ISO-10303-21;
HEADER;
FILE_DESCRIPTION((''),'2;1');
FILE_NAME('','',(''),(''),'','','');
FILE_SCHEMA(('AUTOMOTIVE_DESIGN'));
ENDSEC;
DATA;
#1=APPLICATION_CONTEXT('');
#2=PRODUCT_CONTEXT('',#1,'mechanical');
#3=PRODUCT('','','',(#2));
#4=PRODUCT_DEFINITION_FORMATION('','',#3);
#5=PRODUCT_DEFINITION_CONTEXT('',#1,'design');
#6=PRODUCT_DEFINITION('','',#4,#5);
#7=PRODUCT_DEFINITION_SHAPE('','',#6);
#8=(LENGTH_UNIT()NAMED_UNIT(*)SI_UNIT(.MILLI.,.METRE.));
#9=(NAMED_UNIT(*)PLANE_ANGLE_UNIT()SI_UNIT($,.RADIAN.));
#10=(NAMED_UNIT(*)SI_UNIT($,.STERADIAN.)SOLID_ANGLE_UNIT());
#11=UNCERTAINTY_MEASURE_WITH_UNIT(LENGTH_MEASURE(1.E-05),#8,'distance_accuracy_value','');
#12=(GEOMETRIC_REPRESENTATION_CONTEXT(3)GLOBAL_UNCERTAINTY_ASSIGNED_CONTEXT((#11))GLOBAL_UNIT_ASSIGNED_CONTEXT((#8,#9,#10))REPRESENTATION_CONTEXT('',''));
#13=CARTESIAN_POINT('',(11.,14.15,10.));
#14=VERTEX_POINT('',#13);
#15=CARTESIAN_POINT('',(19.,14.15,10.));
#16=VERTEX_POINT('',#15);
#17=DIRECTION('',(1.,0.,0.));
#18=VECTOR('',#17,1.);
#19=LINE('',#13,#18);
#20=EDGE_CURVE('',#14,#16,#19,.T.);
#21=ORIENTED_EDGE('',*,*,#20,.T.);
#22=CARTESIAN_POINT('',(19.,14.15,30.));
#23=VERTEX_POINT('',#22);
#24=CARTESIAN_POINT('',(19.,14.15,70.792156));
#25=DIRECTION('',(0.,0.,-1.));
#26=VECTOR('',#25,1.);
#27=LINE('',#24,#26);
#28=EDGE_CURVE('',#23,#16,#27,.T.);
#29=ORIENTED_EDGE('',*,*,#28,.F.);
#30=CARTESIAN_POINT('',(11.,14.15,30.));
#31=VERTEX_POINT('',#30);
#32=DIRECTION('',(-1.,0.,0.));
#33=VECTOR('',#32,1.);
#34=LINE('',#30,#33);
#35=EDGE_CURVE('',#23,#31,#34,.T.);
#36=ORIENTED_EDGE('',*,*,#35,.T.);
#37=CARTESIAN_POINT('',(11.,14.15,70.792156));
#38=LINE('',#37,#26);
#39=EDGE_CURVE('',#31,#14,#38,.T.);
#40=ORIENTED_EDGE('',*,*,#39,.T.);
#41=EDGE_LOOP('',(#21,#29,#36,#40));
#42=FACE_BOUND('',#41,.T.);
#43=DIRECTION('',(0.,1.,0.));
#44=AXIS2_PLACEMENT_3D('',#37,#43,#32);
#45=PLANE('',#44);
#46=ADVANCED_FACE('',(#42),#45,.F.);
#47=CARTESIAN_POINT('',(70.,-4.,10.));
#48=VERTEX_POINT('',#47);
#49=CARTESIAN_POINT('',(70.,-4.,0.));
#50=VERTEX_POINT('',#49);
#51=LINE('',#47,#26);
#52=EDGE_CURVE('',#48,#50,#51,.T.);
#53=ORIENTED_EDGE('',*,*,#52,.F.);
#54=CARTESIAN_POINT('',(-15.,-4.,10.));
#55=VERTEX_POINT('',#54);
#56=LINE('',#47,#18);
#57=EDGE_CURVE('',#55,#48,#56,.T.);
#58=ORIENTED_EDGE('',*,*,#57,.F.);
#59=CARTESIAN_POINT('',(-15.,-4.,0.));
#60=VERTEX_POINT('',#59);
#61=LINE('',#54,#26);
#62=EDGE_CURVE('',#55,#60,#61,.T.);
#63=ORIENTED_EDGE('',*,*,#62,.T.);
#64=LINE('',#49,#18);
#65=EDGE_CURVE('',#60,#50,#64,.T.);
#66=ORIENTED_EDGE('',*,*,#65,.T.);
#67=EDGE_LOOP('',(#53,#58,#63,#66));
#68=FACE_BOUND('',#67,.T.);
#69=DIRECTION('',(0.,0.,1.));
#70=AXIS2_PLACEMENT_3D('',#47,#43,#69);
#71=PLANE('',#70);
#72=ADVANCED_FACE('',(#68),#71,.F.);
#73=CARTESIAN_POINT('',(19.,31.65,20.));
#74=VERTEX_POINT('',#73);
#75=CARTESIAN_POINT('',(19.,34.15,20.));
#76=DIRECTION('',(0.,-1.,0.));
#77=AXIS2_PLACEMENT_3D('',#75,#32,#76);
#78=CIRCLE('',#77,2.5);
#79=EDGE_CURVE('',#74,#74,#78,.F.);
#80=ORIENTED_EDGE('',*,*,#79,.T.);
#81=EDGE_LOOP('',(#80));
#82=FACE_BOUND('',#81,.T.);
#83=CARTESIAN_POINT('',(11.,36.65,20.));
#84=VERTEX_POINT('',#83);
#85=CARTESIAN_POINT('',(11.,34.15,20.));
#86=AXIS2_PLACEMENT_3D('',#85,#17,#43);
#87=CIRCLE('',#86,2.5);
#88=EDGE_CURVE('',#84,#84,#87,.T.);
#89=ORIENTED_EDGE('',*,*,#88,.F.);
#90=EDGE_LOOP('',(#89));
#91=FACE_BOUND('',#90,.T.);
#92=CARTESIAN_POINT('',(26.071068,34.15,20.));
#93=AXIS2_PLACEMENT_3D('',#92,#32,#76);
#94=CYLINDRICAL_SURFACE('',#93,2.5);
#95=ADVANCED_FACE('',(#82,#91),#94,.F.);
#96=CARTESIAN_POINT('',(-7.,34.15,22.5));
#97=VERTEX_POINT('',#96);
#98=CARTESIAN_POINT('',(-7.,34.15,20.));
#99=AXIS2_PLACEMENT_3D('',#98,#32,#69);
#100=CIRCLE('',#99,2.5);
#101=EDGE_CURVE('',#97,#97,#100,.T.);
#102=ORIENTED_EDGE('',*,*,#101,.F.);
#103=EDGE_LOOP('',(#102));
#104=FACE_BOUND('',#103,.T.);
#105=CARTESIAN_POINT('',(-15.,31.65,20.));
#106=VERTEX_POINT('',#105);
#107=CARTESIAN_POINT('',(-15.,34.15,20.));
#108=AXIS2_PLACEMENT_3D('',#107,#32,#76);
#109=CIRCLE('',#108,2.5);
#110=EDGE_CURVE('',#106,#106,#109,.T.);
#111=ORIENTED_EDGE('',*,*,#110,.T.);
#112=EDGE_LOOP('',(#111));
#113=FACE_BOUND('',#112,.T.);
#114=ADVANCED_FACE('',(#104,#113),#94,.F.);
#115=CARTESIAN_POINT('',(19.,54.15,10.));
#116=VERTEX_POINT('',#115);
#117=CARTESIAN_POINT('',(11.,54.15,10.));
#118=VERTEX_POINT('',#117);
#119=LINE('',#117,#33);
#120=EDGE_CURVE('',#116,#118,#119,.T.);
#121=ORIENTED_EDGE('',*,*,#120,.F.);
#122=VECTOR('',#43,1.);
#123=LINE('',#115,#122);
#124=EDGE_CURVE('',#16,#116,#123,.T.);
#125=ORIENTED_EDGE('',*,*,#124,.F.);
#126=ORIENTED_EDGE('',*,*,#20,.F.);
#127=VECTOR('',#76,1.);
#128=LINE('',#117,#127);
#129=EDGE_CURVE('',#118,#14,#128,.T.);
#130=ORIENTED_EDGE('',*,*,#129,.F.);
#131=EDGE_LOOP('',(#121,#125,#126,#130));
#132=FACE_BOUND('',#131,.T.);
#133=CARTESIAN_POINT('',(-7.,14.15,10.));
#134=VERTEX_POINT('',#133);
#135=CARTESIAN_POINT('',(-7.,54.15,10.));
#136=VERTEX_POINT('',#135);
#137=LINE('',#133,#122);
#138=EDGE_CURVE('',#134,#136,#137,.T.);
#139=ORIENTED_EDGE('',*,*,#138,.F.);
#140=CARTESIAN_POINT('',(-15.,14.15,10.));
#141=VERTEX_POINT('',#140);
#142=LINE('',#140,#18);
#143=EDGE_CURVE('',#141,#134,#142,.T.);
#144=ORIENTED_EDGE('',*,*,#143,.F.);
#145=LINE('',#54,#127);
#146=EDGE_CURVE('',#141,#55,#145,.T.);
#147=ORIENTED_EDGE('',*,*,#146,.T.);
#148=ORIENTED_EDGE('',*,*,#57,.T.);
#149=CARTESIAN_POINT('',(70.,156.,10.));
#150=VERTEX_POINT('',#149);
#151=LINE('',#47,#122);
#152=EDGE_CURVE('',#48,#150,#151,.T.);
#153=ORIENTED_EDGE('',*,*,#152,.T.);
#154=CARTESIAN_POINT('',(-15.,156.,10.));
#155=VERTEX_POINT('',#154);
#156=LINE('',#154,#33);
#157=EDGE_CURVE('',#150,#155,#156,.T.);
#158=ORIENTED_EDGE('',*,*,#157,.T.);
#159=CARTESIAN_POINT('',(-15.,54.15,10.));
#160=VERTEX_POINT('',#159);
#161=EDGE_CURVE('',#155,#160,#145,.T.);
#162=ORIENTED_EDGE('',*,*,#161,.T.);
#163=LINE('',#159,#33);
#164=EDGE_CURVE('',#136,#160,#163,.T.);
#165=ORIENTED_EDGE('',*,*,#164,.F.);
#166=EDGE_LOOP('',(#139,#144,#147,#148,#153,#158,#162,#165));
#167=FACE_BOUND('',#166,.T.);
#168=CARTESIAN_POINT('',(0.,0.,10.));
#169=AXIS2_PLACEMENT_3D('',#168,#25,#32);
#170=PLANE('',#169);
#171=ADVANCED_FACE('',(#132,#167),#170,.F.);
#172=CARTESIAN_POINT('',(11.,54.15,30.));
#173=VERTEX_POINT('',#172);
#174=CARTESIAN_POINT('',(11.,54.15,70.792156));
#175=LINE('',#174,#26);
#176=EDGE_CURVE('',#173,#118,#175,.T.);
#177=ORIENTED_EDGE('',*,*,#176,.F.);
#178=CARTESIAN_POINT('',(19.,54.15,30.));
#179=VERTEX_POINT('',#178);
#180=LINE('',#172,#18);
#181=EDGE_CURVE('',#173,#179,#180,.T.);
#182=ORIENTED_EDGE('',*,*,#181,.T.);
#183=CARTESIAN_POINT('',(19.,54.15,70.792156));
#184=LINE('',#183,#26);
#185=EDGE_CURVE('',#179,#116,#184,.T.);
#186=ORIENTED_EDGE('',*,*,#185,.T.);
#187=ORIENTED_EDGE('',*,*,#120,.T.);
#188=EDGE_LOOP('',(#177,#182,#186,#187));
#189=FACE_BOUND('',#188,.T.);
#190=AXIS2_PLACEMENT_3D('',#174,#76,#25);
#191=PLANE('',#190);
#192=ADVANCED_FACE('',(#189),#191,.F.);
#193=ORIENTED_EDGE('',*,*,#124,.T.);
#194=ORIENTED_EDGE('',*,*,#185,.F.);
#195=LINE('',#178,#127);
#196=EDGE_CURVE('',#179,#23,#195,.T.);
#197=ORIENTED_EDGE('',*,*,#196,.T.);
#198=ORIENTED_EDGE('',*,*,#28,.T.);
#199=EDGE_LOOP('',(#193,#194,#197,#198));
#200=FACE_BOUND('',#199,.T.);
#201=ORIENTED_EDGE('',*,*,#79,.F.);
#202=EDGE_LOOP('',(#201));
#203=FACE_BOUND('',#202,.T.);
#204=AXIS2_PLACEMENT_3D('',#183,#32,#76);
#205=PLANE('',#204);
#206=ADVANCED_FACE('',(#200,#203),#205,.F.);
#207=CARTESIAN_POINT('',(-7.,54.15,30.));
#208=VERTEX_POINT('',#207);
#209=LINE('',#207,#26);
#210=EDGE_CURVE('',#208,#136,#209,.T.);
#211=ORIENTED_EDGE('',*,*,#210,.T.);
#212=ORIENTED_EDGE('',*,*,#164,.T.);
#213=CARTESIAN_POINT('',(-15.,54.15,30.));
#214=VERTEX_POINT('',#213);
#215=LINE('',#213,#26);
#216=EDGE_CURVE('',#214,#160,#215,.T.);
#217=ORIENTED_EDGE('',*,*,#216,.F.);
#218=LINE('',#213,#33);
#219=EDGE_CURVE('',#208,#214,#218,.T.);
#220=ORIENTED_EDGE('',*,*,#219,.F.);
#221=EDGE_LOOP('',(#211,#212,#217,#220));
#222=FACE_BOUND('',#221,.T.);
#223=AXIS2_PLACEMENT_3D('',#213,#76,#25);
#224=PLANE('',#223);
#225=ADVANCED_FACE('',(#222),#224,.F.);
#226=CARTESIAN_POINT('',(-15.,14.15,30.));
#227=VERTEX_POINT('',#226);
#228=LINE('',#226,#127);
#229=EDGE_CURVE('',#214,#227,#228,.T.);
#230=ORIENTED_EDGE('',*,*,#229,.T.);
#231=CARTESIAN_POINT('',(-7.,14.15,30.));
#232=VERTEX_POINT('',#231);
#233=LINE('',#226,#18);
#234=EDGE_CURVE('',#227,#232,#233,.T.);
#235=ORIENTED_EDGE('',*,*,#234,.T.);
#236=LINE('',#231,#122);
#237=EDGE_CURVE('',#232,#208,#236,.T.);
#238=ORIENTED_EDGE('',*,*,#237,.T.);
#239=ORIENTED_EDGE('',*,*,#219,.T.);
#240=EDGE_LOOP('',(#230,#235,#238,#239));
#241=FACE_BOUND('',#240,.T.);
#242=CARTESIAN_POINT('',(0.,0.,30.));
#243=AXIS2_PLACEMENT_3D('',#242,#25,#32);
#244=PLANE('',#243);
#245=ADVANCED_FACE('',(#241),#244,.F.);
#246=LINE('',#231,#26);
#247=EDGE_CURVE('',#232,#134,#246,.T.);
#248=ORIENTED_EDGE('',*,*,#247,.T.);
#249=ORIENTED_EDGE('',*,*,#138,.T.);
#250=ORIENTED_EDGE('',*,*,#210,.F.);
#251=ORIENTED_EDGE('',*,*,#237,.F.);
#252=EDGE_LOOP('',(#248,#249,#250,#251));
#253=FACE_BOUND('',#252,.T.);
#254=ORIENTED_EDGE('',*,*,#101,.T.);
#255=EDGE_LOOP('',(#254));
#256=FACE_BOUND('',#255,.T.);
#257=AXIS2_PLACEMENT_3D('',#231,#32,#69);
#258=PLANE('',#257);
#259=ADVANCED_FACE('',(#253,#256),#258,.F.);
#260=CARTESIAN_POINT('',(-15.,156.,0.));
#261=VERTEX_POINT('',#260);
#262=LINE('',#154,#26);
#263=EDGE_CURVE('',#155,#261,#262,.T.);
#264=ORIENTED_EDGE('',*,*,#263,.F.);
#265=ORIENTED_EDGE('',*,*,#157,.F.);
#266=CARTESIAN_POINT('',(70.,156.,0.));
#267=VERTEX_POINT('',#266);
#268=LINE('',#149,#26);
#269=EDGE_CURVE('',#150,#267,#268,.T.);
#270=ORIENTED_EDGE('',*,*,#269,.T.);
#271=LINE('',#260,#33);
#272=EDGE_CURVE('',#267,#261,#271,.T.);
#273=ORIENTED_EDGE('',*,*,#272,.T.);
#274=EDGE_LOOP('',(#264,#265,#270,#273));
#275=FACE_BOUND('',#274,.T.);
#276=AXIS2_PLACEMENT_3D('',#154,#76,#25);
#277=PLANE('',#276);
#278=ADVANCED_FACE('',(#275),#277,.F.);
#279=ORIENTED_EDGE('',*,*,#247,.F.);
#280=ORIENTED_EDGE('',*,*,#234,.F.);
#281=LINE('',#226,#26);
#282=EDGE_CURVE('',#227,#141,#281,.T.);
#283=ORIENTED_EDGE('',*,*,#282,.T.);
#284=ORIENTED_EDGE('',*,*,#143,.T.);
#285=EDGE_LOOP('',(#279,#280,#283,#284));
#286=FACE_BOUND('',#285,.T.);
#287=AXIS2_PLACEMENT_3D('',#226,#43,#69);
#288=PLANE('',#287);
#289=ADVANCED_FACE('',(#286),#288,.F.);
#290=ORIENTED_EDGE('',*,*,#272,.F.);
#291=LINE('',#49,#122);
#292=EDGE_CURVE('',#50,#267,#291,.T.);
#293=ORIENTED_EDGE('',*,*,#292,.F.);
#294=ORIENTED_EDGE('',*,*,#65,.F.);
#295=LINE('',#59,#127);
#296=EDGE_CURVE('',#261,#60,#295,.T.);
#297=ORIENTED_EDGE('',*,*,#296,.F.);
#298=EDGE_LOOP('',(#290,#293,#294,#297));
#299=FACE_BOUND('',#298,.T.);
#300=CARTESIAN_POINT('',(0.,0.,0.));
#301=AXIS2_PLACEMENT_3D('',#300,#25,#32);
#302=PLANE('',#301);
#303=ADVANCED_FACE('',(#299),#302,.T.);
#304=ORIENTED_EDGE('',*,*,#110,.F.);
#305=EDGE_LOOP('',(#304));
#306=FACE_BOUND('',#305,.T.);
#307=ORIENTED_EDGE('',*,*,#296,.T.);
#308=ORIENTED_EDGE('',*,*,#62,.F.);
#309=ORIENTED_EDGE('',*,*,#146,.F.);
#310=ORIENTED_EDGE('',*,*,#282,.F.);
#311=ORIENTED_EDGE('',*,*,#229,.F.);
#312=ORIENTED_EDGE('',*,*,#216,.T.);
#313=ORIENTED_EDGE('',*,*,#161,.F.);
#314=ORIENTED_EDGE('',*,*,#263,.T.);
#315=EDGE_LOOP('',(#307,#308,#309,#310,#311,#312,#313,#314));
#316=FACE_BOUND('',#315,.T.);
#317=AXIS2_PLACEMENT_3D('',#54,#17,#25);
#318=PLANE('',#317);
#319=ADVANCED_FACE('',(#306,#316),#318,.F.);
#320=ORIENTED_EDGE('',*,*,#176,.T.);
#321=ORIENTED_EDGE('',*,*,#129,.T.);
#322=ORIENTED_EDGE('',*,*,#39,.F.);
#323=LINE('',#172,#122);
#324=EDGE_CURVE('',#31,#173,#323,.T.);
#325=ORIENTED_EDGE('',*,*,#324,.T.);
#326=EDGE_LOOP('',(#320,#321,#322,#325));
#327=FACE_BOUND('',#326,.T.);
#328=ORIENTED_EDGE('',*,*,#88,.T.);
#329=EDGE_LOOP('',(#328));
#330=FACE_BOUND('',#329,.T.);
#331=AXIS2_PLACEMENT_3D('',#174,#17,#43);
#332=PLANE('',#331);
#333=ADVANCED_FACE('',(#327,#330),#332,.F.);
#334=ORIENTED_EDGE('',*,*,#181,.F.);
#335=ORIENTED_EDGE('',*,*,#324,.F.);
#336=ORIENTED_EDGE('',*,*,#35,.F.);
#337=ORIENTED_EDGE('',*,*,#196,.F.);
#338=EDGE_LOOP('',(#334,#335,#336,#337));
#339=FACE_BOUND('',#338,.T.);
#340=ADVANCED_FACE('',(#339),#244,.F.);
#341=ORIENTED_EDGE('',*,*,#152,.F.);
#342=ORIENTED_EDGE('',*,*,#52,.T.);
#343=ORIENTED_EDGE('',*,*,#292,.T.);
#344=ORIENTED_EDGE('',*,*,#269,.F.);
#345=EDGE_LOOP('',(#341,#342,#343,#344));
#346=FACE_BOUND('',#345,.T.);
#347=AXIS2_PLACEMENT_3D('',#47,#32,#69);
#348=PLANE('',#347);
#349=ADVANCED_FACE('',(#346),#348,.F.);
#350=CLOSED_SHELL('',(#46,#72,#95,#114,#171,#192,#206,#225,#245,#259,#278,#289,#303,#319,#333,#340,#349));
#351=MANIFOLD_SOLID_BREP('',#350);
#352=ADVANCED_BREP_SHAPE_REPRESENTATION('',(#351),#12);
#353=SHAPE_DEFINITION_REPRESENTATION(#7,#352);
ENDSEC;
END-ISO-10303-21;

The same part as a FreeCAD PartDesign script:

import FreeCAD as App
import Part
import Sketcher

doc = App.newDocument("Part")
body = doc.addObject("PartDesign::Body", "Body")

sketch1 = body.newObject("Sketcher::SketchObject", "Sketch")
sketch1.AttachmentSupport = (doc.getObject("XY_Plane"), [""])
sketch1.MapMode = "FlatFace"
sketch1.addGeometry(Part.LineSegment(App.Vector(-15, 156, 0), App.Vector(-15, -4, 0)), False)
sketch1.addGeometry(Part.LineSegment(App.Vector(-15, -4, 0), App.Vector(70, -4, 0)), False)
sketch1.addGeometry(Part.LineSegment(App.Vector(70, -4, 0), App.Vector(70, 156, 0)), False)
sketch1.addGeometry(Part.LineSegment(App.Vector(70, 156, 0), App.Vector(-15, 156, 0)), False)
sketch1.addConstraint(Sketcher.Constraint("Coincident", 0, 2, 1, 1))
sketch1.addConstraint(Sketcher.Constraint("Coincident", 1, 2, 2, 1))
sketch1.addConstraint(Sketcher.Constraint("Coincident", 2, 2, 3, 1))
sketch1.addConstraint(Sketcher.Constraint("Coincident", 3, 2, 0, 1))
sketch1.addConstraint(Sketcher.Constraint("Vertical", 0))
sketch1.addConstraint(Sketcher.Constraint("Horizontal", 1))
sketch1.addConstraint(Sketcher.Constraint("Vertical", 2))
sketch1.addConstraint(Sketcher.Constraint("Horizontal", 3))
sketch1.addConstraint(Sketcher.Constraint("DistanceX", 1, 1, 1, 2, 85.0))
sketch1.addConstraint(Sketcher.Constraint("DistanceY", 0, 2, 0, 1, 160.0))
sketch1.addConstraint(Sketcher.Constraint("DistanceX", 0, 2, -1, 1, 15.0))
sketch1.addConstraint(Sketcher.Constraint("DistanceY", 0, 2, -1, 1, 4.0))
pad1 = body.newObject("PartDesign::Pad", "Pad")
pad1.Profile = sketch1
pad1.Length = 10

sketch2 = body.newObject("Sketcher::SketchObject", "Sketch001")
sketch2.AttachmentSupport = (doc.getObject("XY_Plane"), [""])
sketch2.MapMode = "FlatFace"
sketch2.AttachmentOffset = App.Placement(App.Vector(0, 0, 10), App.Rotation())
sketch2.addGeometry(Part.LineSegment(App.Vector(-15, 54.15, 0), App.Vector(-15, 14.15, 0)), False)
sketch2.addGeometry(Part.LineSegment(App.Vector(-15, 14.15, 0), App.Vector(-7, 14.15, 0)), False)
sketch2.addGeometry(Part.LineSegment(App.Vector(-7, 14.15, 0), App.Vector(-7, 54.15, 0)), False)
sketch2.addGeometry(Part.LineSegment(App.Vector(-7, 54.15, 0), App.Vector(-15, 54.15, 0)), False)
sketch2.addConstraint(Sketcher.Constraint("Coincident", 0, 2, 1, 1))
sketch2.addConstraint(Sketcher.Constraint("Coincident", 1, 2, 2, 1))
sketch2.addConstraint(Sketcher.Constraint("Coincident", 2, 2, 3, 1))
sketch2.addConstraint(Sketcher.Constraint("Coincident", 3, 2, 0, 1))
sketch2.addConstraint(Sketcher.Constraint("Vertical", 0))
sketch2.addConstraint(Sketcher.Constraint("Horizontal", 1))
sketch2.addConstraint(Sketcher.Constraint("Vertical", 2))
sketch2.addConstraint(Sketcher.Constraint("Horizontal", 3))
sketch2.addConstraint(Sketcher.Constraint("DistanceX", 1, 1, 1, 2, 8.0))
sketch2.addConstraint(Sketcher.Constraint("DistanceY", 0, 2, 0, 1, 40.0))
sketch2.addConstraint(Sketcher.Constraint("DistanceX", 0, 2, -1, 1, 15.0))
sketch2.addConstraint(Sketcher.Constraint("DistanceY", -1, 1, 0, 2, 14.15))
pad2 = body.newObject("PartDesign::Pad", "Pad001")
pad2.Profile = sketch2
pad2.Length = 20

sketch3 = body.newObject("Sketcher::SketchObject", "Sketch002")
sketch3.AttachmentSupport = (doc.getObject("XY_Plane"), [""])
sketch3.MapMode = "FlatFace"
sketch3.AttachmentOffset = App.Placement(App.Vector(0, 0, 10), App.Rotation())
sketch3.addGeometry(Part.LineSegment(App.Vector(11, 54.15, 0), App.Vector(11, 14.15, 0)), False)
sketch3.addGeometry(Part.LineSegment(App.Vector(11, 14.15, 0), App.Vector(19, 14.15, 0)), False)
sketch3.addGeometry(Part.LineSegment(App.Vector(19, 14.15, 0), App.Vector(19, 54.15, 0)), False)
sketch3.addGeometry(Part.LineSegment(App.Vector(19, 54.15, 0), App.Vector(11, 54.15, 0)), False)
sketch3.addConstraint(Sketcher.Constraint("Coincident", 0, 2, 1, 1))
sketch3.addConstraint(Sketcher.Constraint("Coincident", 1, 2, 2, 1))
sketch3.addConstraint(Sketcher.Constraint("Coincident", 2, 2, 3, 1))
sketch3.addConstraint(Sketcher.Constraint("Coincident", 3, 2, 0, 1))
sketch3.addConstraint(Sketcher.Constraint("Vertical", 0))
sketch3.addConstraint(Sketcher.Constraint("Horizontal", 1))
sketch3.addConstraint(Sketcher.Constraint("Vertical", 2))
sketch3.addConstraint(Sketcher.Constraint("Horizontal", 3))
sketch3.addConstraint(Sketcher.Constraint("DistanceX", 1, 1, 1, 2, 8.0))
sketch3.addConstraint(Sketcher.Constraint("DistanceY", 0, 2, 0, 1, 40.0))
sketch3.addConstraint(Sketcher.Constraint("DistanceX", -1, 1, 0, 2, 11.0))
sketch3.addConstraint(Sketcher.Constraint("DistanceY", -1, 1, 0, 2, 14.15))
pad3 = body.newObject("PartDesign::Pad", "Pad002")
pad3.Profile = sketch3
pad3.Length = 20

sketch4 = body.newObject("Sketcher::SketchObject", "Sketch003")
sketch4.AttachmentSupport = (doc.getObject("YZ_Plane"), [""])
sketch4.MapMode = "FlatFace"
sketch4.AttachmentOffset = App.Placement(App.Vector(0, 0, -15), App.Rotation())
sketch4.addGeometry(Part.Circle(App.Vector(34.15, 20, 0), App.Vector(0, 0, 1), 2.5), False)
sketch4.addConstraint(Sketcher.Constraint("Diameter", 0, 5.0))
sketch4.addConstraint(Sketcher.Constraint("DistanceY", -1, 1, 0, 3, 20.0))
sketch4.addConstraint(Sketcher.Constraint("DistanceX", -1, 1, 0, 3, 34.15))
pocket1 = body.newObject("PartDesign::Pocket", "Pocket")
pocket1.Profile = sketch4
pocket1.Length = 34
pocket1.Reversed = True

doc.recompute()
